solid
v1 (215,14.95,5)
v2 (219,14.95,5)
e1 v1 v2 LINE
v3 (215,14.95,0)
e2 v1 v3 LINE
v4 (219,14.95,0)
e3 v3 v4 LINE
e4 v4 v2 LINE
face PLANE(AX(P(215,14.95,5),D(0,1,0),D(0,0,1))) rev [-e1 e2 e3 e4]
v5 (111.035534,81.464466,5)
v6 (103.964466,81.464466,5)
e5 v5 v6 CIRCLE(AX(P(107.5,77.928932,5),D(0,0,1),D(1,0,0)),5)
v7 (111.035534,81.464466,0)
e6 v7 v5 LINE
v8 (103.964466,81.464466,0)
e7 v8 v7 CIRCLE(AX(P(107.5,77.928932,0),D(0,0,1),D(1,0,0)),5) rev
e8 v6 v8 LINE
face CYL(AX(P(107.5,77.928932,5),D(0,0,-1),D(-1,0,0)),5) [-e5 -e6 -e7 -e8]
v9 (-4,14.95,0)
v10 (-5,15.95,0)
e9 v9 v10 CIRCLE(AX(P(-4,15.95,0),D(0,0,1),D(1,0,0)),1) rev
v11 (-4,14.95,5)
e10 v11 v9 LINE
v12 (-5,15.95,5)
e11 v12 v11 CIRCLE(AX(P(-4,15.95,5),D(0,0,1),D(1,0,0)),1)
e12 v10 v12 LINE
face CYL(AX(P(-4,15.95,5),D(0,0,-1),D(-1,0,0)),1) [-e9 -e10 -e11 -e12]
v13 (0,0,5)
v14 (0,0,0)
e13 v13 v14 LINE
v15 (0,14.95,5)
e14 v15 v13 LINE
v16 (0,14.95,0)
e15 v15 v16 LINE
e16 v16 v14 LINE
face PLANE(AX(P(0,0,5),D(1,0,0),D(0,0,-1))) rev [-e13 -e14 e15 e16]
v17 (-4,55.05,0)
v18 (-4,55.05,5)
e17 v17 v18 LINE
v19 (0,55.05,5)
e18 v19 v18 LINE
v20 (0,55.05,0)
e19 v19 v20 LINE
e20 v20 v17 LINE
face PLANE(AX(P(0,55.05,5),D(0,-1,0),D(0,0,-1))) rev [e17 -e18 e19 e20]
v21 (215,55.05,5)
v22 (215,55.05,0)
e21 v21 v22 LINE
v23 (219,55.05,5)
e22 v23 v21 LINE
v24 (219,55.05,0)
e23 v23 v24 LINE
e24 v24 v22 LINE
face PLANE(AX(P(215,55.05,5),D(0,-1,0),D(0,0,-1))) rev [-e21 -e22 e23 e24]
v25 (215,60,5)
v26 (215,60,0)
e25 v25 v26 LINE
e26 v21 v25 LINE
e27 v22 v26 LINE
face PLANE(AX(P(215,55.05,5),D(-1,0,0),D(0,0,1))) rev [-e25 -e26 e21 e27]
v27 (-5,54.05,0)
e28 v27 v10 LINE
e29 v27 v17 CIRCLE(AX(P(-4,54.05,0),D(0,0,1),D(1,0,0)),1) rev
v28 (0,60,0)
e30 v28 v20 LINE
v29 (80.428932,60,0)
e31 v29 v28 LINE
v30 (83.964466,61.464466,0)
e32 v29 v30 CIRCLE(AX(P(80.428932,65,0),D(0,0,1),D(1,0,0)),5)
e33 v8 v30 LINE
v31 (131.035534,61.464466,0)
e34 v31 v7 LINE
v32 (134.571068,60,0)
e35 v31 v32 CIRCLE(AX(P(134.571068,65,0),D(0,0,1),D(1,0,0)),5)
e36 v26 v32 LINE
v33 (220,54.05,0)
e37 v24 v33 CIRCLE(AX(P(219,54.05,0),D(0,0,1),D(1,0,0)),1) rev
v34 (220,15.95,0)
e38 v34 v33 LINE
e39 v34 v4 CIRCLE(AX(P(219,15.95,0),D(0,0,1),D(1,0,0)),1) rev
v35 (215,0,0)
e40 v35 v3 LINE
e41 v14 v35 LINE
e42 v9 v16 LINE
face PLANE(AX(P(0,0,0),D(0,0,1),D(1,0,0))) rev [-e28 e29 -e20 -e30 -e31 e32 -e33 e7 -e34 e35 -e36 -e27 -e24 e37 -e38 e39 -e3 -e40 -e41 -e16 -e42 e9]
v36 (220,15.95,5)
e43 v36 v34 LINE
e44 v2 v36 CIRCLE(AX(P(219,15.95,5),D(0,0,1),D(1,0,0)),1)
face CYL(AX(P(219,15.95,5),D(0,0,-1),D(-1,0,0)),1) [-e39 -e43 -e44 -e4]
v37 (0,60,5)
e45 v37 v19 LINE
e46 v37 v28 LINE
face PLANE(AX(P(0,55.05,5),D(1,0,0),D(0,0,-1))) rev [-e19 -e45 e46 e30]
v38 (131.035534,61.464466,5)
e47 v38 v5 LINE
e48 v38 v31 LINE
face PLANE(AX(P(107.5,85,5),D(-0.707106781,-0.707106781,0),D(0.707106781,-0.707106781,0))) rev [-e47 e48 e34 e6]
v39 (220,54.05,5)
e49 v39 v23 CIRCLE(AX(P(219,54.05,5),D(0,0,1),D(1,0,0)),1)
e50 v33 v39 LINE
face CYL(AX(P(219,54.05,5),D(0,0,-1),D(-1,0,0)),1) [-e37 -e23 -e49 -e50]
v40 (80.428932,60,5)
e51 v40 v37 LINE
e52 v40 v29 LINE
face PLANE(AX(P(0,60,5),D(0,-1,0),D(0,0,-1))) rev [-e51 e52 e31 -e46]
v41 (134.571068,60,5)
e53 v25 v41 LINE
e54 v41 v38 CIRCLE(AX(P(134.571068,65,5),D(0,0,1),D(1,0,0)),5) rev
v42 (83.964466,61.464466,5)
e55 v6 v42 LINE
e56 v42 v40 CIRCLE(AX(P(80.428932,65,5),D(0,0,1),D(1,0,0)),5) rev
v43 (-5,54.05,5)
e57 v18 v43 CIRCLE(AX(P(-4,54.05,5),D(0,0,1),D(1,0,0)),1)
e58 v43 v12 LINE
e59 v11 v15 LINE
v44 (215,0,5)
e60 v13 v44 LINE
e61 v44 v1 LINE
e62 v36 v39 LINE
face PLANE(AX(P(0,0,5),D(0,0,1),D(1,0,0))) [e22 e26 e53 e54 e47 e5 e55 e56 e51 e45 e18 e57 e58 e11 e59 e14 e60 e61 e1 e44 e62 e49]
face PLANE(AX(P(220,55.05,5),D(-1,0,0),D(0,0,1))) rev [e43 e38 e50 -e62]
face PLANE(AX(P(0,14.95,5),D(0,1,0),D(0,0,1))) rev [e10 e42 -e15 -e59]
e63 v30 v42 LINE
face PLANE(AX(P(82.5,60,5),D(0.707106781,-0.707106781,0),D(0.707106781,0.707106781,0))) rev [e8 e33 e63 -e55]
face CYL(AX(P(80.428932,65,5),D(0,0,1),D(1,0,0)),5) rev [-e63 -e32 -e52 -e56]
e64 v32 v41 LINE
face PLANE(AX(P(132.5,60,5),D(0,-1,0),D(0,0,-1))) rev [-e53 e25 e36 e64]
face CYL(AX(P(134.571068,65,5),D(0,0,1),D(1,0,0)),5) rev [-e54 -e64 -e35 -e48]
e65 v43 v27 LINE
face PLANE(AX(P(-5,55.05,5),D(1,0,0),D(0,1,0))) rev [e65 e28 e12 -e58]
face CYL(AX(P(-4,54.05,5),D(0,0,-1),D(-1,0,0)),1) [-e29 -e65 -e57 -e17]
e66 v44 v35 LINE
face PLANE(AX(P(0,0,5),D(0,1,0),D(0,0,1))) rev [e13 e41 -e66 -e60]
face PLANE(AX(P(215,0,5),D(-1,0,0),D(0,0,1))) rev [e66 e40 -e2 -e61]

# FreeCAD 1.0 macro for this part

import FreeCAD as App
import Part
import Sketcher

V = App.Vector
Q = App.Units.Quantity


def edges_at(feature, points):
    """Names of the edges that pass closest to the given points."""
    edges = feature.Shape.Edges
    near = lambda p: min(range(len(edges)), key=lambda i: edges[i].distToShape(Part.Vertex(*p))[0])
    return sorted({f"Edge{near(p) + 1}" for p in points})


def add_polygon(sketch, points):
    """Adds a closed chain of lines whose ends are joined by coincident constraints."""
    first, n = sketch.GeometryCount, len(points)
    for a, b in zip(points, points[1:] + points[:1]):
        sketch.addGeometry(Part.LineSegment(App.Vector(*a, 0), App.Vector(*b, 0)), False)
    for i in range(n):
        sketch.addConstraint(Sketcher.Constraint("Coincident", first + i, 2, first + (i + 1) % n, 1))

doc = App.newDocument("Part")
params = doc.addObject("Spreadsheet::Sheet", "Params")
for row, (alias, value) in enumerate([
    ("sketch1_width", "5 mm"),
    ("sketch1_width2", "215 mm"),
    ("sketch1_width3", "82.5 mm"),
    ("sketch1_height", "40.1 mm"),
    ("sketch1_height2", "4.95 mm"),
    ("pad1_length", "5 mm"),
    ("fillet_radius", "5 mm"),
    ("fillet2_radius", "1 mm"),
], start=1):
    params.set(f"A{row}", alias)
    params.set(f"B{row}", "=" + value)
    params.setAlias(f"B{row}", alias)

body = doc.addObject("PartDesign::Body", "Body")

# Sketch on XY plane
sketch1 = body.newObject("Sketcher::SketchObject", "Sketch")
sketch1.AttachmentSupport = (doc.getObject("XY_Plane"), [""])
sketch1.MapMode = "FlatFace"
add_polygon(sketch1, [(215, 55), (215, 60), (132.5, 60), (107.5, 85), (82.5, 60), (0, 60), (0, 55), (-5, 55), (-5, 14.9), (0, 14.9), (0, 0), (215, 0), (215, 14.9), (220, 14.9), (220, 55)])  # lines 0-14
sketch1.addConstraint(Sketcher.Constraint("Vertical", 0))
sketch1.addConstraint(Sketcher.Constraint("Horizontal", 1))
sketch1.addConstraint(Sketcher.Constraint("Horizontal", 4))
sketch1.addConstraint(Sketcher.Constraint("Vertical", 5))
sketch1.addConstraint(Sketcher.Constraint("Horizontal", 6))
sketch1.addConstraint(Sketcher.Constraint("Vertical", 7))
sketch1.addConstraint(Sketcher.Constraint("Horizontal", 8))
sketch1.addConstraint(Sketcher.Constraint("Vertical", 9))
sketch1.addConstraint(Sketcher.Constraint("Horizontal", 10))
sketch1.addConstraint(Sketcher.Constraint("Vertical", 11))
sketch1.addConstraint(Sketcher.Constraint("Horizontal", 12))
sketch1.addConstraint(Sketcher.Constraint("Vertical", 13))
sketch1.addConstraint(Sketcher.Constraint("Horizontal", 14))
sketch1.addConstraint(Sketcher.Constraint("Coincident", 9, 2, -1, 1))
sketch1.addConstraint(Sketcher.Constraint("PointOnObject", 4, 2, -2))
sketch1.addConstraint(Sketcher.Constraint("Perpendicular", 2, 3))
sketch1.addConstraint(Sketcher.Constraint("Horizontal", 1, 2, 3, 2))
sketch1.addConstraint(Sketcher.Constraint("Horizontal", 8, 2, 11, 2))
sketch1.addConstraint(Sketcher.Constraint("Horizontal", 6, 2, 13, 2))
sketch1.addConstraint(Sketcher.Constraint("Vertical", 0, 2, 10, 2))
sketch1.addConstraint(Sketcher.Constraint("Equal", 1, 4))
sketch1.addConstraint(Sketcher.Constraint("Equal", 8, 12))
sketch1.addConstraint(Sketcher.Constraint("Equal", 2, 3))
sketch1.addConstraint(Sketcher.Constraint("DistanceX", 6, 2, 6, 1, Q("5 mm")))
sketch1.addConstraint(Sketcher.Constraint("DistanceX", 10, 1, 10, 2, Q("215 mm")))
sketch1.addConstraint(Sketcher.Constraint("DistanceX", 1, 2, 1, 1, Q("82.5 mm")))
sketch1.addConstraint(Sketcher.Constraint("DistanceY", 7, 2, 7, 1, Q("40.1 mm")))
sketch1.addConstraint(Sketcher.Constraint("DistanceY", -1, 1, 0, 2, Q("60 mm")))
sketch1.addConstraint(Sketcher.Constraint("DistanceY", 0, 1, 0, 2, Q("4.95 mm")))
sketch1.setExpression("Constraints[38]", "Params.sketch1_width")
sketch1.setExpression("Constraints[39]", "Params.sketch1_width2")
sketch1.setExpression("Constraints[40]", "Params.sketch1_width3")
sketch1.setExpression("Constraints[41]", "Params.sketch1_height")
sketch1.setExpression("Constraints[43]", "Params.sketch1_height2")
pad1 = body.newObject("PartDesign::Pad", "Pad")
pad1.Profile = sketch1
pad1.setExpression("Length", "Params.pad1_length")
doc.recompute()

fillet = body.newObject("PartDesign::Fillet", "Fillet")
fillet.Base = (pad1, edges_at(pad1, [(82.5, 60, 2.5), (107.5, 85, 2.5), (132.5, 60, 2.5)]))
fillet.setExpression("Radius", "Params.fillet_radius")
doc.recompute()

fillet2 = body.newObject("PartDesign::Fillet", "Fillet001")
fillet2.Base = (fillet, edges_at(fillet, [
    (-5, 14.95, 2.5),
    (-5, 55.05, 2.5),
    (220, 55.05, 2.5),
    (220, 14.95, 2.5),
]))
fillet2.setExpression("Radius", "Params.fillet2_radius")

doc.recompute()
